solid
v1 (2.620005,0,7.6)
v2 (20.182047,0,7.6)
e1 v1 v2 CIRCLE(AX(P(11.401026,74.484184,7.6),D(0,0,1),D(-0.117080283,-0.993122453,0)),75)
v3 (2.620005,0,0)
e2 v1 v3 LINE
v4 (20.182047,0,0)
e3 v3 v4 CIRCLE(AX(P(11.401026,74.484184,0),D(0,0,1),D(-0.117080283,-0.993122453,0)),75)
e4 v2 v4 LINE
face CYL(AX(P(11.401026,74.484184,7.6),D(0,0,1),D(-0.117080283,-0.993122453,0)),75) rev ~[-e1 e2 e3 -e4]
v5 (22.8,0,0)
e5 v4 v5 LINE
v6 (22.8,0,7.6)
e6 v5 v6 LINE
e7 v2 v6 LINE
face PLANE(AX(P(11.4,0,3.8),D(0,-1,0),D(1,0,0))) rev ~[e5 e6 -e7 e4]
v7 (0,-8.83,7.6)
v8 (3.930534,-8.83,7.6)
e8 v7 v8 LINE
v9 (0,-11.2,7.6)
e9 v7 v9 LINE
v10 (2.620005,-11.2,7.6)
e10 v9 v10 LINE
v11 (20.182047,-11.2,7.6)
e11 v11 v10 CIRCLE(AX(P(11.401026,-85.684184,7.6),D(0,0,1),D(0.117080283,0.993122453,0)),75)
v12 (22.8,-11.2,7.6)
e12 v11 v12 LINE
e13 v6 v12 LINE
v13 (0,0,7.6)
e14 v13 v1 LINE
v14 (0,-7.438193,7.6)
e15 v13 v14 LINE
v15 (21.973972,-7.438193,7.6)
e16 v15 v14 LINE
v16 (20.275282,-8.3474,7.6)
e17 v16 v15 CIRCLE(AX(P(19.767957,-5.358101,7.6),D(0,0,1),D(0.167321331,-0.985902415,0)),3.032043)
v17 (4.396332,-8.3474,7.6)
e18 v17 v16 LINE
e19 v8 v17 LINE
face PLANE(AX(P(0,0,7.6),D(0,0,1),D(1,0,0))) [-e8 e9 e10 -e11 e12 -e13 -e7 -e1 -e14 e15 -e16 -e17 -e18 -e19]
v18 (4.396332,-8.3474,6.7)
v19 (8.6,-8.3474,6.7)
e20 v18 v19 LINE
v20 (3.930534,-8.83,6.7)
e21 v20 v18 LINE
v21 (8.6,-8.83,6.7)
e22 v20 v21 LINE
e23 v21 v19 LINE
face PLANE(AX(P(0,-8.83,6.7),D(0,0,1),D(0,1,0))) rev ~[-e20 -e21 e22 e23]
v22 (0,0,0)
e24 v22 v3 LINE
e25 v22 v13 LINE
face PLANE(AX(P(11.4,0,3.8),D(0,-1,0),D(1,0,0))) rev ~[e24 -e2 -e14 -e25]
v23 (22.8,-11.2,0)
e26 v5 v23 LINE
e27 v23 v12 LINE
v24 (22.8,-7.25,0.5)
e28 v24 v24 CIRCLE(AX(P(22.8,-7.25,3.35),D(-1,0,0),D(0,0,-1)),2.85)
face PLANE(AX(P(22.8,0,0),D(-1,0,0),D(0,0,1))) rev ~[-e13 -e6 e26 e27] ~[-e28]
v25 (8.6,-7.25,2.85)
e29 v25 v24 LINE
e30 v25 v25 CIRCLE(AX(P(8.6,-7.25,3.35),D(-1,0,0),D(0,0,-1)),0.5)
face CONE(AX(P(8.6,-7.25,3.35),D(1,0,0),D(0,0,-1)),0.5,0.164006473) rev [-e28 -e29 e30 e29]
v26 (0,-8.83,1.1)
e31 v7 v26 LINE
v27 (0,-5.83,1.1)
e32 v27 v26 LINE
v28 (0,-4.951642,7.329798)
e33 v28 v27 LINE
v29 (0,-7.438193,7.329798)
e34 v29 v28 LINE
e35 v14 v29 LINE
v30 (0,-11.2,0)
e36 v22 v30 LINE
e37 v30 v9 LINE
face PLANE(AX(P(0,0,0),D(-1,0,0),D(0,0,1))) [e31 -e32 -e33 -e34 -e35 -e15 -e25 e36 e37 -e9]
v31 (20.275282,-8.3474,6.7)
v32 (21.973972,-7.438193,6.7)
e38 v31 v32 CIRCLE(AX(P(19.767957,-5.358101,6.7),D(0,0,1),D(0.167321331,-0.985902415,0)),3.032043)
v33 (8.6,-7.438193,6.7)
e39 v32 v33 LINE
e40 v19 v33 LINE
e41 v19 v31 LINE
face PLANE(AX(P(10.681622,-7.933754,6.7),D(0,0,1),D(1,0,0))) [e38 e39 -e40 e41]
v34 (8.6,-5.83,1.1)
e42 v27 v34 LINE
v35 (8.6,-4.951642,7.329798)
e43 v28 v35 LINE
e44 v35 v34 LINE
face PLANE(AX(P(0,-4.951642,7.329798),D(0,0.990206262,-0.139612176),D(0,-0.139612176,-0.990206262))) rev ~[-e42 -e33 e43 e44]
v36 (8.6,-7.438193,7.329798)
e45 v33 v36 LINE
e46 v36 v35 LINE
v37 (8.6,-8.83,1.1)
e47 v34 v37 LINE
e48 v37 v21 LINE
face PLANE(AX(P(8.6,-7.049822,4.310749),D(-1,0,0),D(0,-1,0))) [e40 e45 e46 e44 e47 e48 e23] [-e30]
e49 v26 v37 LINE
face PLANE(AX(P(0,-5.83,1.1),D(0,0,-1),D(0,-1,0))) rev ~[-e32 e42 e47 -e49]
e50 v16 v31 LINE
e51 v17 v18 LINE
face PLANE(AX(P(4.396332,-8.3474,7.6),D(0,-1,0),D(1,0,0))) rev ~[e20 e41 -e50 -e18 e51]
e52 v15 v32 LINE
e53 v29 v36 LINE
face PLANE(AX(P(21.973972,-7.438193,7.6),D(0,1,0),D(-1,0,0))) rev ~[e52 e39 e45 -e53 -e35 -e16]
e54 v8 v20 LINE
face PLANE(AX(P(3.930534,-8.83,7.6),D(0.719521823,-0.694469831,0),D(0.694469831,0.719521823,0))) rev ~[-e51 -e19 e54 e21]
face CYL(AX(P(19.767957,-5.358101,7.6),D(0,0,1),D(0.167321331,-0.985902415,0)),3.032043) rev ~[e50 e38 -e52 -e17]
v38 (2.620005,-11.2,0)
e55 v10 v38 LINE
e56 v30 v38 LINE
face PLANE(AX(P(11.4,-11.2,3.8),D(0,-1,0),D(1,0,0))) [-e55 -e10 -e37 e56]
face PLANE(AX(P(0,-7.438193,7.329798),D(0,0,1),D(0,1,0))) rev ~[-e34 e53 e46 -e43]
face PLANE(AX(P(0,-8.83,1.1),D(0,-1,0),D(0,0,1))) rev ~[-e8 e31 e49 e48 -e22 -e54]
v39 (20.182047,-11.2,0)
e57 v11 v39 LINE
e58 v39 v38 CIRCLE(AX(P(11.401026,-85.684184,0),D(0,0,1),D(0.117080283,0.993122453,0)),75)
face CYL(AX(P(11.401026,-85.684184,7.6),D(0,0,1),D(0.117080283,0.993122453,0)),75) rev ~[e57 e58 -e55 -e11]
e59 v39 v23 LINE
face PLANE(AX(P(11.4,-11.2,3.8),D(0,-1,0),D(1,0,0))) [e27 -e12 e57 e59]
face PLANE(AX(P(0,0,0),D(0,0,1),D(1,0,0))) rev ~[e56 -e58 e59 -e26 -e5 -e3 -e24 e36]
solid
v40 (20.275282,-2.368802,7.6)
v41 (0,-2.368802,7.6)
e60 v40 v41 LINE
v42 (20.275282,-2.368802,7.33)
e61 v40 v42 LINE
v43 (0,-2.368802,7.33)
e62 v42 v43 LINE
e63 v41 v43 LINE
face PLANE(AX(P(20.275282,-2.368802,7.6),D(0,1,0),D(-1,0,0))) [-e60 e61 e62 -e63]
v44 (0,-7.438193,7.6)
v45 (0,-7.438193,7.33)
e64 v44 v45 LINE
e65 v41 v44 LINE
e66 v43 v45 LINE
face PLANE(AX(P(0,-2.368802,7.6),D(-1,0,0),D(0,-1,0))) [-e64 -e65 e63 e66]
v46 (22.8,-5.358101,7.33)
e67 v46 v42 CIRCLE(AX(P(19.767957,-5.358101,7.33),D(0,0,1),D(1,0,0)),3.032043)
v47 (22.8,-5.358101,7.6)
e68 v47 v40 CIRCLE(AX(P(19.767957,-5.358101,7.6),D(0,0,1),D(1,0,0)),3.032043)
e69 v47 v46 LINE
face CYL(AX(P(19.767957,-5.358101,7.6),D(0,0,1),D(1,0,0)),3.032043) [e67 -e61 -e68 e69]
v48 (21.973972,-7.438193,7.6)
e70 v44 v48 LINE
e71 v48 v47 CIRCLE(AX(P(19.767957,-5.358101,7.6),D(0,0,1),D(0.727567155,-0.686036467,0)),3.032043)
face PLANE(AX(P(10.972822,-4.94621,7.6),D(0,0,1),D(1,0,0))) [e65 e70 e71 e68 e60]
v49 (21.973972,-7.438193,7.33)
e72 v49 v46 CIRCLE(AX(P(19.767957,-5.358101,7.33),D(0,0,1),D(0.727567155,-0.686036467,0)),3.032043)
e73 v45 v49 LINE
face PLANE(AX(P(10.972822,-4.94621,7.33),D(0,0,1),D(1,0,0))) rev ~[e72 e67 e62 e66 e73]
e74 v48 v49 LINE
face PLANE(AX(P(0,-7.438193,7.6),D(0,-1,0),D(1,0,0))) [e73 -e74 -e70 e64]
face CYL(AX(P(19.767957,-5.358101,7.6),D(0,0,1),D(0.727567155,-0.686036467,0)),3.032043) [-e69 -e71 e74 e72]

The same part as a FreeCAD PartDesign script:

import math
import FreeCAD as App
import Part
import Sketcher

V = App.Vector
Q = App.Units.Quantity

doc = App.newDocument("Part")
body = doc.addObject("PartDesign::Body", "Body")

# Sketch on XZ plane
sketch1 = body.newObject("Sketcher::SketchObject", "Sketch")
sketch1.AttachmentSupport = (doc.getObject("XZ_Plane"), [""])
sketch1.MapMode = "FlatFace"
sketch1.addGeometry(Part.LineSegment(V(0, 7.6, 0), V(0, 0, 0)), False)
sketch1.addGeometry(Part.LineSegment(V(0, 0, 0), V(22.8, 0, 0)), False)
sketch1.addGeometry(Part.LineSegment(V(22.8, 0, 0), V(22.8, 7.6, 0)), False)
sketch1.addGeometry(Part.LineSegment(V(22.8, 7.6, 0), V(0, 7.6, 0)), False)
sketch1.addConstraint(Sketcher.Constraint("Coincident", 0, 2, 1, 1))
sketch1.addConstraint(Sketcher.Constraint("Coincident", 1, 2, 2, 1))
sketch1.addConstraint(Sketcher.Constraint("Coincident", 2, 2, 3, 1))
sketch1.addConstraint(Sketcher.Constraint("Coincident", 3, 2, 0, 1))
sketch1.addConstraint(Sketcher.Constraint("Vertical", 0))
sketch1.addConstraint(Sketcher.Constraint("Horizontal", 1))
sketch1.addConstraint(Sketcher.Constraint("Vertical", 2))
sketch1.addConstraint(Sketcher.Constraint("Horizontal", 3))
sketch1.addConstraint(Sketcher.Constraint("Coincident", 0, 2, -1, 1))
sketch1.addConstraint(Sketcher.Constraint("DistanceX", 1, 1, 1, 2, Q("22.8 mm")))
sketch1.addConstraint(Sketcher.Constraint("DistanceY", 0, 2, 0, 1, Q("7.6 mm")))
pad1 = body.newObject("PartDesign::Pad", "Pad")
pad1.Profile = sketch1
pad1.Length = 11.2

# Sketch on XZ plane
sketch2 = body.newObject("Sketcher::SketchObject", "Sketch001")
sketch2.AttachmentSupport = (doc.getObject("XZ_Plane"), [""])
sketch2.MapMode = "FlatFace"
sketch2.AttachmentOffset = App.Placement(V(0, 0, 7.25), App.Rotation())
sketch2.addGeometry(Part.LineSegment(V(8.6, 2.85, 0), V(22.8, 0.5, 0)), False)
sketch2.addGeometry(Part.LineSegment(V(22.8, 0.5, 0), V(22.8, 3.35, 0)), False)
sketch2.addGeometry(Part.LineSegment(V(22.8, 3.35, 0), V(8.6, 3.35, 0)), False)
sketch2.addGeometry(Part.LineSegment(V(8.6, 3.35, 0), V(8.6, 2.85, 0)), False)
sketch2.addGeometry(Part.LineSegment(V(22.8, 3.35, 0), V(8.6, 3.35, 0)), True)  # axis
sketch2.addConstraint(Sketcher.Constraint("Coincident", 0, 2, 1, 1))
sketch2.addConstraint(Sketcher.Constraint("Coincident", 1, 2, 2, 1))
sketch2.addConstraint(Sketcher.Constraint("Coincident", 2, 2, 3, 1))
sketch2.addConstraint(Sketcher.Constraint("Coincident", 3, 2, 0, 1))
sketch2.addConstraint(Sketcher.Constraint("Vertical", 1))
sketch2.addConstraint(Sketcher.Constraint("Horizontal", 2))
sketch2.addConstraint(Sketcher.Constraint("Vertical", 3))
sketch2.addConstraint(Sketcher.Constraint("Horizontal", 4))
sketch2.addConstraint(Sketcher.Constraint("Coincident", 4, 1, 1, 2))
sketch2.addConstraint(Sketcher.Constraint("Vertical", 3, 2, 4, 2))
sketch2.addConstraint(Sketcher.Constraint("DistanceX", 2, 2, 2, 1, Q("14.2 mm")))
sketch2.addConstraint(Sketcher.Constraint("DistanceY", 3, 2, 3, 1, Q("0.5 mm")))
sketch2.addConstraint(Sketcher.Constraint("DistanceY", 1, 1, 1, 2, Q("2.85 mm")))
sketch2.addConstraint(Sketcher.Constraint("DistanceX", -1, 1, 0, 2, Q("22.8 mm")))
sketch2.addConstraint(Sketcher.Constraint("DistanceY", -1, 1, 0, 2, Q("0.5 mm")))
groove = body.newObject("PartDesign::Groove", "Groove")
groove.Profile = sketch2
groove.ReferenceAxis = (sketch2, ["Axis0"])
groove.Angle = 360

# Sketch on XY plane
sketch3 = body.newObject("Sketcher::SketchObject", "Sketch002")
sketch3.AttachmentSupport = (doc.getObject("XY_Plane"), [""])
sketch3.MapMode = "FlatFace"
sketch3.AttachmentOffset = App.Placement(V(0, 0, 7.6), App.Rotation())
sketch3.addGeometry(Part.LineSegment(V(21.973972, -7.438193, 0), V(0, -7.438193, 0)), False)
sketch3.addGeometry(Part.LineSegment(V(0, -7.438193, 0), V(0, -8.83, 0)), False)
sketch3.addGeometry(Part.LineSegment(V(0, -8.83, 0), V(3.930534, -8.83, 0)), False)
sketch3.addGeometry(Part.LineSegment(V(3.930534, -8.83, 0), V(4.396332, -8.3474, 0)), False)
sketch3.addGeometry(Part.LineSegment(V(4.396332, -8.3474, 0), V(20.275282, -8.3474, 0)), False)
sketch3.addGeometry(Part.ArcOfCircle(Part.Circle(V(19.767957, -5.358101, 0), V(0, 0, 1), 3.032043), math.radians(-80.367888), math.radians(-43.317174)), False)
sketch3.addConstraint(Sketcher.Constraint("Coincident", 0, 2, 1, 1))
sketch3.addConstraint(Sketcher.Constraint("Coincident", 1, 2, 2, 1))
sketch3.addConstraint(Sketcher.Constraint("Coincident", 2, 2, 3, 1))
sketch3.addConstraint(Sketcher.Constraint("Coincident", 3, 2, 4, 1))
sketch3.addConstraint(Sketcher.Constraint("Coincident", 4, 2, 5, 1))
sketch3.addConstraint(Sketcher.Constraint("Coincident", 5, 2, 0, 1))
sketch3.addConstraint(Sketcher.Constraint("Horizontal", 0))
sketch3.addConstraint(Sketcher.Constraint("Vertical", 1))
sketch3.addConstraint(Sketcher.Constraint("Horizontal", 2))
sketch3.addConstraint(Sketcher.Constraint("Horizontal", 4))
sketch3.addConstraint(Sketcher.Constraint("PointOnObject", 0, 2, -2))
sketch3.addConstraint(Sketcher.Constraint("DistanceY", 1, 2, -1, 1, Q("8.83 mm")))
sketch3.addConstraint(Sketcher.Constraint("Radius", 5, Q("3.032043 mm")))
sketch3.addConstraint(Sketcher.Constraint("DistanceX", 0, 2, 0, 1, Q("21.973972 mm")))
sketch3.addConstraint(Sketcher.Constraint("DistanceX", 4, 1, 4, 2, Q("15.878951 mm")))
sketch3.addConstraint(Sketcher.Constraint("DistanceY", 5, 3, -1, 1, Q("5.358101 mm")))
sketch3.addConstraint(Sketcher.Constraint("DistanceY", 3, 2, -1, 1, Q("8.3474 mm")))
sketch3.addConstraint(Sketcher.Constraint("DistanceX", 2, 1, 2, 2, Q("3.930534 mm")))
sketch3.addConstraint(Sketcher.Constraint("DistanceY", 1, 2, 1, 1, Q("1.391807 mm")))
pocket1 = body.newObject("PartDesign::Pocket", "Pocket")
pocket1.Profile = sketch3
pocket1.Length = 0.9

# Sketch on YZ plane
sketch4 = body.newObject("Sketcher::SketchObject", "Sketch003")
sketch4.AttachmentSupport = (doc.getObject("YZ_Plane"), [""])
sketch4.MapMode = "FlatFace"
sketch4.addGeometry(Part.LineSegment(V(-4.951642, 7.329798, 0), V(-5.83, 1.1, 0)), False)
sketch4.addGeometry(Part.LineSegment(V(-5.83, 1.1, 0), V(-8.83, 1.1, 0)), False)
sketch4.addGeometry(Part.LineSegment(V(-8.83, 1.1, 0), V(-8.83, 6.7, 0)), False)
sketch4.addGeometry(Part.LineSegment(V(-8.83, 6.7, 0), V(-7.438193, 6.7, 0)), False)
sketch4.addGeometry(Part.LineSegment(V(-7.438193, 6.7, 0), V(-7.438193, 7.329798, 0)), False)
sketch4.addGeometry(Part.LineSegment(V(-7.438193, 7.329798, 0), V(-4.951642, 7.329798, 0)), False)
sketch4.addConstraint(Sketcher.Constraint("Coincident", 0, 2, 1, 1))
sketch4.addConstraint(Sketcher.Constraint("Coincident", 1, 2, 2, 1))
sketch4.addConstraint(Sketcher.Constraint("Coincident", 2, 2, 3, 1))
sketch4.addConstraint(Sketcher.Constraint("Coincident", 3, 2, 4, 1))
sketch4.addConstraint(Sketcher.Constraint("Coincident", 4, 2, 5, 1))
sketch4.addConstraint(Sketcher.Constraint("Coincident", 5, 2, 0, 1))
sketch4.addConstraint(Sketcher.Constraint("Horizontal", 1))
sketch4.addConstraint(Sketcher.Constraint("Vertical", 2))
sketch4.addConstraint(Sketcher.Constraint("Horizontal", 3))
sketch4.addConstraint(Sketcher.Constraint("Vertical", 4))
sketch4.addConstraint(Sketcher.Constraint("Horizontal", 5))
sketch4.addConstraint(Sketcher.Constraint("DistanceX", 1, 2, 1, 1, Q("3 mm")))
sketch4.addConstraint(Sketcher.Constraint("DistanceY", 2, 1, 2, 2, Q("5.6 mm")))
sketch4.addConstraint(Sketcher.Constraint("DistanceY", -1, 1, 0, 2, Q("1.1 mm")))
sketch4.addConstraint(Sketcher.Constraint("DistanceX", 0, 2, -1, 1, Q("5.83 mm")))
sketch4.addConstraint(Sketcher.Constraint("DistanceY", 4, 1, 4, 2, Q("0.629798 mm")))
sketch4.addConstraint(Sketcher.Constraint("DistanceX", 5, 1, 5, 2, Q("2.486551 mm")))
sketch4.addConstraint(Sketcher.Constraint("DistanceX", 3, 1, 3, 2, Q("1.391807 mm")))
pocket2 = body.newObject("PartDesign::Pocket", "Pocket001")
pocket2.Profile = sketch4
pocket2.Length = 8.6
pocket2.Reversed = True

# Sketch on XY plane
sketch5 = body.newObject("Sketcher::SketchObject", "Sketch004")
sketch5.AttachmentSupport = (doc.getObject("XY_Plane"), [""])
sketch5.MapMode = "FlatFace"
sketch5.AttachmentOffset = App.Placement(V(0, 0, 7.6), App.Rotation())
sketch5.addGeometry(Part.LineSegment(V(2.620005, -11.2, 0), V(20.182047, -11.2, 0)), False)
sketch5.addGeometry(Part.ArcOfCircle(Part.Circle(V(11.401026, -85.684184, 0), V(0, 0, 1), 75), math.radians(83.276373), math.radians(96.723627)), False)
sketch5.addConstraint(Sketcher.Constraint("Coincident", 0, 1, 1, 2))
sketch5.addConstraint(Sketcher.Constraint("Coincident", 1, 1, 0, 2))
sketch5.addConstraint(Sketcher.Constraint("Horizontal", 0))
sketch5.addConstraint(Sketcher.Constraint("Radius", 1, Q("75 mm")))
sketch5.addConstraint(Sketcher.Constraint("DistanceY", 0, 1, -1, 1, Q("11.2 mm")))
sketch5.addConstraint(Sketcher.Constraint("DistanceX", 0, 1, 0, 2, Q("17.562042 mm")))
sketch5.addConstraint(Sketcher.Constraint("DistanceX", -1, 1, 1, 3, Q("11.401026 mm")))
pocket3 = body.newObject("PartDesign::Pocket", "Pocket002")
pocket3.Profile = sketch5
pocket3.Length = 7.6

# Sketch on XY plane
sketch6 = body.newObject("Sketcher::SketchObject", "Sketch005")
sketch6.AttachmentSupport = (doc.getObject("XY_Plane"), [""])
sketch6.MapMode = "FlatFace"
sketch6.AttachmentOffset = App.Placement(V(0, 0, 7.6), App.Rotation())
sketch6.addGeometry(Part.LineSegment(V(20.182047, 0, 0), V(2.620005, 0, 0)), False)
sketch6.addGeometry(Part.ArcOfCircle(Part.Circle(V(11.401026, 74.484184, 0), V(0, 0, 1), 75), math.radians(-96.723627), math.radians(-83.276373)), False)
sketch6.addConstraint(Sketcher.Constraint("Coincident", 0, 1, 1, 2))
sketch6.addConstraint(Sketcher.Constraint("Coincident", 1, 1, 0, 2))
sketch6.addConstraint(Sketcher.Constraint("Horizontal", 0))
sketch6.addConstraint(Sketcher.Constraint("PointOnObject", 0, 1, -1))
sketch6.addConstraint(Sketcher.Constraint("Radius", 1, Q("75 mm")))
sketch6.addConstraint(Sketcher.Constraint("DistanceX", 0, 2, 0, 1, Q("17.562042 mm")))
sketch6.addConstraint(Sketcher.Constraint("DistanceX", -1, 1, 1, 3, Q("11.401026 mm")))
pocket4 = body.newObject("PartDesign::Pocket", "Pocket003")
pocket4.Profile = sketch6
pocket4.Length = 7.6
body2 = doc.addObject("PartDesign::Body", "Body001")

# Sketch on XY plane
sketch7 = body2.newObject("Sketcher::SketchObject", "Sketch006")
sketch7.AttachmentSupport = (doc.getObject("XY_Plane001"), [""])
sketch7.MapMode = "FlatFace"
sketch7.AttachmentOffset = App.Placement(V(0, 0, 7.6), App.Rotation())
sketch7.addGeometry(Part.LineSegment(V(20.275282, -2.368802, 0), V(0, -2.368802, 0)), False)
sketch7.addGeometry(Part.LineSegment(V(0, -2.368802, 0), V(0, -7.438193, 0)), False)
sketch7.addGeometry(Part.LineSegment(V(0, -7.438193, 0), V(21.973972, -7.438193, 0)), False)
sketch7.addGeometry(Part.ArcOfCircle(Part.Circle(V(19.767957, -5.358101, 0), V(0, 0, 1), 3.032043), math.radians(-43.317174), math.radians(0)), False)
sketch7.addGeometry(Part.ArcOfCircle(Part.Circle(V(19.767957, -5.358101, 0), V(0, 0, 1), 3.032043), math.radians(0), math.radians(80.367888)), False)
sketch7.addConstraint(Sketcher.Constraint("Coincident", 0, 2, 1, 1))
sketch7.addConstraint(Sketcher.Constraint("Coincident", 1, 2, 2, 1))
sketch7.addConstraint(Sketcher.Constraint("Coincident", 2, 2, 3, 1))
sketch7.addConstraint(Sketcher.Constraint("Tangent", 3, 2, 4, 1))
sketch7.addConstraint(Sketcher.Constraint("Coincident", 4, 2, 0, 1))
sketch7.addConstraint(Sketcher.Constraint("Horizontal", 0))
sketch7.addConstraint(Sketcher.Constraint("Vertical", 1))
sketch7.addConstraint(Sketcher.Constraint("Horizontal", 2))
sketch7.addConstraint(Sketcher.Constraint("Equal", 3, 4))
sketch7.addConstraint(Sketcher.Constraint("PointOnObject", 0, 2, -2))
sketch7.addConstraint(Sketcher.Constraint("Horizontal", 4, 3, 3, 2))
sketch7.addConstraint(Sketcher.Constraint("DistanceX", -1, 1, 3, 2, Q("22.8 mm")))
sketch7.addConstraint(Sketcher.Constraint("Radius", 3, Q("3.032043 mm")))
sketch7.addConstraint(Sketcher.Constraint("DistanceX", 2, 1, 2, 2, Q("21.973972 mm")))
sketch7.addConstraint(Sketcher.Constraint("DistanceY", 1, 2, 1, 1, Q("5.069391 mm")))
sketch7.addConstraint(Sketcher.Constraint("DistanceY", 3, 3, -1, 1, Q("5.358101 mm")))
pad2 = body2.newObject("PartDesign::Pad", "Pad001")
pad2.Profile = sketch7
pad2.Length = 0.27
pad2.Reversed = True

doc.recompute()
